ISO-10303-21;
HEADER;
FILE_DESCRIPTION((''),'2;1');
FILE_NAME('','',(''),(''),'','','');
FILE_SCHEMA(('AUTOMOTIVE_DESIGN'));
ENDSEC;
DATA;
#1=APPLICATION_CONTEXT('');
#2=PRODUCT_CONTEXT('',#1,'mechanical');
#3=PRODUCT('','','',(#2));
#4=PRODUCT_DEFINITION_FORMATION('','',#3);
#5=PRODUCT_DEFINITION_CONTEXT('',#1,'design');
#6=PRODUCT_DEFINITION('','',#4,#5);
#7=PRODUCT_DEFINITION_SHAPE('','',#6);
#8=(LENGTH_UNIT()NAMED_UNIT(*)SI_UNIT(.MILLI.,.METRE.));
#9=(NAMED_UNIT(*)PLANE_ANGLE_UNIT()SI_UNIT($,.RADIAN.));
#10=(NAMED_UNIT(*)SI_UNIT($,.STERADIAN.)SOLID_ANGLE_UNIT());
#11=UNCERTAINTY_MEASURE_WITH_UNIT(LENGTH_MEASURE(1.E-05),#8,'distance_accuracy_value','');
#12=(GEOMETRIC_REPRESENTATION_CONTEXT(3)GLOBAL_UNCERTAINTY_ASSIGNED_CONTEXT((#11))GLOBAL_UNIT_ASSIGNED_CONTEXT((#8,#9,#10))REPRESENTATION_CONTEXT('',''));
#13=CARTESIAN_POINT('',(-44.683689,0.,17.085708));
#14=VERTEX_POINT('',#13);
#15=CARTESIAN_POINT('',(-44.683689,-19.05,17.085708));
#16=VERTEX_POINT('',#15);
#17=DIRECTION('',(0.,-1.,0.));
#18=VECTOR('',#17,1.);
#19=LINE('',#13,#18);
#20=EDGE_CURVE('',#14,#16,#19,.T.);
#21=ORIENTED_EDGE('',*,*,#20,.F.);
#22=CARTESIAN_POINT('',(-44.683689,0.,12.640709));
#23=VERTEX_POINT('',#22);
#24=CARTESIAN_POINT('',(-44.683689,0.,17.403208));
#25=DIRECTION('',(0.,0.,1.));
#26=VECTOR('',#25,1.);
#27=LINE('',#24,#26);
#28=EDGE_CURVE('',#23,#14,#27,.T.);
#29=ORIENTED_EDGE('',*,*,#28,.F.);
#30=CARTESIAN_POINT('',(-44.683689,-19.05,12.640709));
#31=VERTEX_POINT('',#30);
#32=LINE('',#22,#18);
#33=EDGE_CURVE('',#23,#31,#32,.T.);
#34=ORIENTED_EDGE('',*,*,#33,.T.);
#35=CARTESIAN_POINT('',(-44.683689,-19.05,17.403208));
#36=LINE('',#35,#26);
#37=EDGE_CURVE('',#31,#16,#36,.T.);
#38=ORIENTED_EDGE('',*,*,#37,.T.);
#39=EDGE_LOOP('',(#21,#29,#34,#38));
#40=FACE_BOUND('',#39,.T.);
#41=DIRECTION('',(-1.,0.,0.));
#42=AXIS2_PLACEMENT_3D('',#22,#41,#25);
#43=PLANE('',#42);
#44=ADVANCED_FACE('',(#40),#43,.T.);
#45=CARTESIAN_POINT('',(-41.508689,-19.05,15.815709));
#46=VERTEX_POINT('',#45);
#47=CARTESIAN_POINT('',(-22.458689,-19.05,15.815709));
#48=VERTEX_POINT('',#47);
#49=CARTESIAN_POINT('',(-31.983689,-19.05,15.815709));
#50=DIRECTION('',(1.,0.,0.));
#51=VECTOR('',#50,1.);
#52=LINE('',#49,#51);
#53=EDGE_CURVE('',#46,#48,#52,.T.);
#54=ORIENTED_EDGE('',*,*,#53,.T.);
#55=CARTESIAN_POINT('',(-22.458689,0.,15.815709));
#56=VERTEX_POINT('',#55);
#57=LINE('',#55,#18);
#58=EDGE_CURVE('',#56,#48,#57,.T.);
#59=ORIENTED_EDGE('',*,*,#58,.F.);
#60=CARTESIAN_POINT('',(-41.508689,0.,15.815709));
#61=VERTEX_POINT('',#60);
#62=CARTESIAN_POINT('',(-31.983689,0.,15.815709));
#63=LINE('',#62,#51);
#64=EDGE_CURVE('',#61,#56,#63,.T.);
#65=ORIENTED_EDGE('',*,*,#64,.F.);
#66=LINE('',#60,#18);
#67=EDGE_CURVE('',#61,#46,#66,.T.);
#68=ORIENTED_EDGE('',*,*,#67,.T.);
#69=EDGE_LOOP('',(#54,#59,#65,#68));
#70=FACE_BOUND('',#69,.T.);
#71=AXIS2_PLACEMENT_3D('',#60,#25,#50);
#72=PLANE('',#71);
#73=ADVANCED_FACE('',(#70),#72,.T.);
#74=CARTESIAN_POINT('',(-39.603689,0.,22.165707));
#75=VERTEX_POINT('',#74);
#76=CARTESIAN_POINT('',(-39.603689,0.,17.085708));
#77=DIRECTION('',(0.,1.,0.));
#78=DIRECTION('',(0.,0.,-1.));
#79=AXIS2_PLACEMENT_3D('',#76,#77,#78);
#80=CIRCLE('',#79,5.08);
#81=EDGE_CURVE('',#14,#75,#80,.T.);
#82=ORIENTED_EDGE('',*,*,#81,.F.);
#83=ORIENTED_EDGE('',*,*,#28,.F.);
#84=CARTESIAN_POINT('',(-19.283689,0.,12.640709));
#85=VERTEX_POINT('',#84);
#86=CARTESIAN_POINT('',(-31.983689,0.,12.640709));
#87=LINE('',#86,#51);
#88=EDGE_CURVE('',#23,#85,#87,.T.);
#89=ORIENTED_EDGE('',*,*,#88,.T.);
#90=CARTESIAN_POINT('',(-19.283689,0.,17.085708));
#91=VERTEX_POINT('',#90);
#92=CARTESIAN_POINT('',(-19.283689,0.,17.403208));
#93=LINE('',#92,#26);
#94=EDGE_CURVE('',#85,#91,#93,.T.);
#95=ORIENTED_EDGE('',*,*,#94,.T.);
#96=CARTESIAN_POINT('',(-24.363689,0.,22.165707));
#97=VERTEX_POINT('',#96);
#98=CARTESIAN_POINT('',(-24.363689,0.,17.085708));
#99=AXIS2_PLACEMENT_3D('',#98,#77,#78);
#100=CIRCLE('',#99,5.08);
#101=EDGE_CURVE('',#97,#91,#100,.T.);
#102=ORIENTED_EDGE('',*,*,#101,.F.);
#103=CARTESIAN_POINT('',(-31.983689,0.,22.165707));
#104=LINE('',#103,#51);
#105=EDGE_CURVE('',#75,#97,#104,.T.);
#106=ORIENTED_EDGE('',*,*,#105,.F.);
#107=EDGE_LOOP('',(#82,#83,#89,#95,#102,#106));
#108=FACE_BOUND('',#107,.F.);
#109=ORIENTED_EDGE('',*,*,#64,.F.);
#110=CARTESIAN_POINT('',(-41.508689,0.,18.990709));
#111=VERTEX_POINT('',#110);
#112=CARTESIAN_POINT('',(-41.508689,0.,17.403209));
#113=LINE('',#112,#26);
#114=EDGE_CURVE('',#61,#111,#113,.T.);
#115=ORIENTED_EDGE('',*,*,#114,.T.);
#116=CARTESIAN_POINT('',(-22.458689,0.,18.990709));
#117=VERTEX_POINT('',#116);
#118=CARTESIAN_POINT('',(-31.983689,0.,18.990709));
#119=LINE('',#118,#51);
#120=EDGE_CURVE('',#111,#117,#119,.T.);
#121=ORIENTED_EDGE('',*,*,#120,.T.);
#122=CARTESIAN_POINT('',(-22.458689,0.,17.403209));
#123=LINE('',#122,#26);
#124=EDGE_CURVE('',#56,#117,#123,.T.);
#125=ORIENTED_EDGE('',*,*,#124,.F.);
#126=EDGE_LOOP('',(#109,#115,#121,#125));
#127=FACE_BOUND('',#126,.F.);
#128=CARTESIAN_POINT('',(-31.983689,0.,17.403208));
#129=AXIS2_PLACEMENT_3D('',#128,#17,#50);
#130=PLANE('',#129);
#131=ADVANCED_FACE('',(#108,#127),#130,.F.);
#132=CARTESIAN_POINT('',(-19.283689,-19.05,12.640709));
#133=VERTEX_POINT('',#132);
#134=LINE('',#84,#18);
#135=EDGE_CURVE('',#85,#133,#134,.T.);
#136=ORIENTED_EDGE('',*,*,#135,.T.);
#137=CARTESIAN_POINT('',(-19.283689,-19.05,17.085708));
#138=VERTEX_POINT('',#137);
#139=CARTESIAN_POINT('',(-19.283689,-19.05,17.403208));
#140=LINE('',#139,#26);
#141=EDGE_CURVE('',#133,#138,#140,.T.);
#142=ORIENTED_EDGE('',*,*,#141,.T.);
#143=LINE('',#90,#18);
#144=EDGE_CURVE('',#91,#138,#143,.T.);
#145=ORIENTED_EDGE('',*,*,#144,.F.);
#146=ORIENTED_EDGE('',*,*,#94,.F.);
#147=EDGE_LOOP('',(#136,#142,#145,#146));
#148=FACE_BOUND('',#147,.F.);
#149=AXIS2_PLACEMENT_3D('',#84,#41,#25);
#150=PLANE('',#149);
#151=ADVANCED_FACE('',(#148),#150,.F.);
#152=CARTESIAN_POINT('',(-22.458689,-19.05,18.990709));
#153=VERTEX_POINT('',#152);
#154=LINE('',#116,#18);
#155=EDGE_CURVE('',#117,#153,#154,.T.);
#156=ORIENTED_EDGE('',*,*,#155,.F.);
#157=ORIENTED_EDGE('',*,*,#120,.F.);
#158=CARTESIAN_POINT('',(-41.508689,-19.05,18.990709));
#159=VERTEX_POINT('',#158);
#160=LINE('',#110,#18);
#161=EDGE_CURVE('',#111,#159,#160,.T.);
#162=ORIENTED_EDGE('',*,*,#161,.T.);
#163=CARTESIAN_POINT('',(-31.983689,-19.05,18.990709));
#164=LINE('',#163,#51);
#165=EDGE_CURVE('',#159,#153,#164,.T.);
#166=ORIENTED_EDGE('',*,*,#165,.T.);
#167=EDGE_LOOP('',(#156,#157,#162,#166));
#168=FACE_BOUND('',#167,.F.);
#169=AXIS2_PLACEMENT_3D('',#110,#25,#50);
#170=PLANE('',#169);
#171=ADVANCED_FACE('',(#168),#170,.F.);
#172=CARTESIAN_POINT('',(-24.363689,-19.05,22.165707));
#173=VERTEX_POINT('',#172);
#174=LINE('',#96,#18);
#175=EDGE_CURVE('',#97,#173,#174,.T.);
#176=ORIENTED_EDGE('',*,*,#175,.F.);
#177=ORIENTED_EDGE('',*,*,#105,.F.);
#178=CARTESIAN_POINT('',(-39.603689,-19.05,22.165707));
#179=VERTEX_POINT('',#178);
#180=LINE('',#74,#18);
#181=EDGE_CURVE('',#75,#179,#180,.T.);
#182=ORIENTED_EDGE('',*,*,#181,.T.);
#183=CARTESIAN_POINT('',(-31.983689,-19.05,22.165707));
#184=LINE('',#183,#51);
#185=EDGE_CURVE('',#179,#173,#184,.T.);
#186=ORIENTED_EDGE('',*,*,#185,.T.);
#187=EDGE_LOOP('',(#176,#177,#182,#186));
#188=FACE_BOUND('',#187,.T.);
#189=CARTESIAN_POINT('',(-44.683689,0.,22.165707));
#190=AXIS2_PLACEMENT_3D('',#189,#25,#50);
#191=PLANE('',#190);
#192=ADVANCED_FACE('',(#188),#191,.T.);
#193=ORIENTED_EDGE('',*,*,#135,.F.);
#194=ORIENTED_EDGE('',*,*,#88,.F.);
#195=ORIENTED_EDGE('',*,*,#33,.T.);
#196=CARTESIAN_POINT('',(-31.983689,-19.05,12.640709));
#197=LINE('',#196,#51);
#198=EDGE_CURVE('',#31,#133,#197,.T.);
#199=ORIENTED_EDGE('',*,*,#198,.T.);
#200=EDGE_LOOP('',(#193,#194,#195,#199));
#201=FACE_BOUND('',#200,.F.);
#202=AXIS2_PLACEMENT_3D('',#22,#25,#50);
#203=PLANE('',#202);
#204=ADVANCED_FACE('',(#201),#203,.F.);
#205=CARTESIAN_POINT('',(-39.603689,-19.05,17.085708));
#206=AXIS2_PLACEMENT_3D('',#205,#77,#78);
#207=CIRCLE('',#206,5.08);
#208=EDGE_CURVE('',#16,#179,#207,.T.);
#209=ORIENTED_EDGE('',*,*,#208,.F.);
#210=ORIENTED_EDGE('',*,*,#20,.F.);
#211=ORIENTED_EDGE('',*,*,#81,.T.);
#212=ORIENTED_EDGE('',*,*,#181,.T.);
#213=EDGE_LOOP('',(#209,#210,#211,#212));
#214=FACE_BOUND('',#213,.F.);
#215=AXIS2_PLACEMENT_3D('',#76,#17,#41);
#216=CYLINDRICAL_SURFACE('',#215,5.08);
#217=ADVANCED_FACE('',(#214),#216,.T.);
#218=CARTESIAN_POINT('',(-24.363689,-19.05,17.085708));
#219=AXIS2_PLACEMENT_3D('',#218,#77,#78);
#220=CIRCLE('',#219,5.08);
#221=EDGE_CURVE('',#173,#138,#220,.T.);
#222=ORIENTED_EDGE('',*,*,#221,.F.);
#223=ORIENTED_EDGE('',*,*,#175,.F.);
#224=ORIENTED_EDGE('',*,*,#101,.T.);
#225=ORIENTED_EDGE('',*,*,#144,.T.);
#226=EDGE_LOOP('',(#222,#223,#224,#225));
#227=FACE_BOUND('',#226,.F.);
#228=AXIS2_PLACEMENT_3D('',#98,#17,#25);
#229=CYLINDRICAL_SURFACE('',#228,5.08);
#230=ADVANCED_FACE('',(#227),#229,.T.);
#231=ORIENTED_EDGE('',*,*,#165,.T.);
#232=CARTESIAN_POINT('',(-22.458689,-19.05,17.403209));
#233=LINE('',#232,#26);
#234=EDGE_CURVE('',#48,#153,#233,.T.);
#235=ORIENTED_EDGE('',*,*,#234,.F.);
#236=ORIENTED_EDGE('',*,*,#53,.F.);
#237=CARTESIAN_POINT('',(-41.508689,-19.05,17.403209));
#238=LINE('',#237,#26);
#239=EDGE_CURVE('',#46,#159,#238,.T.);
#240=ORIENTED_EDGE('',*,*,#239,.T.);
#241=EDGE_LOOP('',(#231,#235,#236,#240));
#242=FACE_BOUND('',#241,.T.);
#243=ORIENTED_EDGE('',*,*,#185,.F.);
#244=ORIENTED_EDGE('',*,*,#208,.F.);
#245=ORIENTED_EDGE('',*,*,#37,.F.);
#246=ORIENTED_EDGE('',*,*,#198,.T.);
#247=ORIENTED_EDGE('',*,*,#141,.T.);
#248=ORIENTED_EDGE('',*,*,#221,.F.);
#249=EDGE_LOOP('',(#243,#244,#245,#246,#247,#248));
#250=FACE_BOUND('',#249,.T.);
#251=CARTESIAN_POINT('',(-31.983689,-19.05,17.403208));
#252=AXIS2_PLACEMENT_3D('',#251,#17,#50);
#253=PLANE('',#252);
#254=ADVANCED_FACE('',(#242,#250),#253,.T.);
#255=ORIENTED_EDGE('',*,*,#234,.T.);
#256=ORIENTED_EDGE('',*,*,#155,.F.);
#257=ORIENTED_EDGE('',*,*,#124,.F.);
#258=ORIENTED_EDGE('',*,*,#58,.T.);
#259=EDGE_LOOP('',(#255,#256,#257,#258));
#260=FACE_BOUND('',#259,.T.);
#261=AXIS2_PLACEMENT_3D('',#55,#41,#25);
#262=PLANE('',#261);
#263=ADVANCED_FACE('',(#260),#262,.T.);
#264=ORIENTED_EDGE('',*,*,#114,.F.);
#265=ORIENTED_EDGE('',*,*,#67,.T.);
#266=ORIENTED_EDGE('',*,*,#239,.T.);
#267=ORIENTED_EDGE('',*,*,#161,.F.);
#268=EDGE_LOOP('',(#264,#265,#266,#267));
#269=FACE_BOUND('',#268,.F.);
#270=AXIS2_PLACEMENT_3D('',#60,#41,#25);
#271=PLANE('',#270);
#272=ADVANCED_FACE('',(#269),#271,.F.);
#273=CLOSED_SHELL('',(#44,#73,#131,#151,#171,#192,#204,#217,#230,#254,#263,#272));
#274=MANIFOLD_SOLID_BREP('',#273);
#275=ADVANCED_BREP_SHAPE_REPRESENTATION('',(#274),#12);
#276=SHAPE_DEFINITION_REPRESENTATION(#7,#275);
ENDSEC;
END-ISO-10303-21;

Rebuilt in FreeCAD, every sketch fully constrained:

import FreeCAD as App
import Part
import Sketcher
Q = App.Units.Quantity


def edges_at(feature, points):
    """Names of the edges that pass closest to the given points."""
    edges = feature.Shape.Edges
    near = lambda p: min(range(len(edges)), key=lambda i: edges[i].distToShape(Part.Vertex(*p))[0])
    return sorted({f"Edge{near(p) + 1}" for p in points})


def add_polygon(sketch, points):
    """Adds a closed chain of lines whose ends are joined by coincident constraints."""
    first, n = sketch.GeometryCount, len(points)
    for a, b in zip(points, points[1:] + points[:1]):
        sketch.addGeometry(Part.LineSegment(App.Vector(*a, 0), App.Vector(*b, 0)), False)
    for i in range(n):
        sketch.addConstraint(Sketcher.Constraint("Coincident", first + i, 2, first + (i + 1) % n, 1))

doc = App.newDocument("Part")
params = doc.addObject("Spreadsheet::Sheet", "Params")
for row, (alias, value) in enumerate([
    ("sketch1_width", "1 in"),
    ("sketch1_width2", "0.75 in"),
    ("sketch1_height", "0.375 in"),
    ("sketch1_height2", "0.125 in"),
    ("pad1_length", "0.75 in"),
    ("fillet_radius", "0.2 in"),
], start=1):
    params.set(f"A{row}", alias)
    params.set(f"B{row}", "=" + value)
    params.setAlias(f"B{row}", alias)

body = doc.addObject("PartDesign::Body", "Body")

# Sketch on XZ plane
sketch1 = body.newObject("Sketcher::SketchObject", "Sketch")
sketch1.AttachmentSupport = (doc.getObject("XZ_Plane"), [""])
sketch1.MapMode = "FlatFace"
add_polygon(sketch1, [(-44.7, 22.2), (-44.7, 12.6), (-19.3, 12.6), (-19.3, 22.2)])  # lines 0-3
add_polygon(sketch1, [(-22.5, 15.8), (-41.5, 15.8), (-41.5, 19), (-22.5, 19)])  # lines 4-7
sketch1.addConstraint([
    Sketcher.Constraint("Vertical", 0),
    Sketcher.Constraint("Horizontal", 1),
    Sketcher.Constraint("Vertical", 2),
    Sketcher.Constraint("Horizontal", 3),
    Sketcher.Constraint("Horizontal", 4),
    Sketcher.Constraint("Vertical", 5),
    Sketcher.Constraint("Horizontal", 6),
    Sketcher.Constraint("Vertical", 7),
    Sketcher.Constraint("DistanceX", 1, 1, 1, 2, Q("1 in")),
    Sketcher.Constraint("DistanceX", 4, 2, 4, 1, Q("0.75 in")),
    Sketcher.Constraint("DistanceY", 0, 2, 0, 1, Q("0.375 in")),
    Sketcher.Constraint("DistanceY", 5, 1, 5, 2, Q("0.125 in")),
    Sketcher.Constraint("DistanceY", 4, 2, 3, 2, Q("0.2499999 in")),
    Sketcher.Constraint("DistanceX", 0, 2, 4, 2, Q("0.125 in")),
    Sketcher.Constraint("DistanceX", 0, 2, -1, 1, Q("44.683689 mm")),
    Sketcher.Constraint("DistanceY", -1, 1, 0, 2, Q("12.640709 mm")),
])
sketch1.setExpression("Constraints[16]", "Params.sketch1_width")
sketch1.setExpression("Constraints[17]", "Params.sketch1_width2")
sketch1.setExpression("Constraints[18]", "Params.sketch1_height")
sketch1.setExpression("Constraints[19]", "Params.sketch1_height2")
pad1 = body.newObject("PartDesign::Pad", "Pad")
pad1.Profile = sketch1
pad1.setExpression("Length", "Params.pad1_length")
doc.recompute()

fillet = body.newObject("PartDesign::Fillet", "Fillet")
fillet.Base = (pad1, edges_at(pad1, [(-44.684, -9.525, 22.166), (-19.284, -9.525, 22.166)]))
fillet.setExpression("Radius", "Params.fillet_radius")

doc.recompute()
